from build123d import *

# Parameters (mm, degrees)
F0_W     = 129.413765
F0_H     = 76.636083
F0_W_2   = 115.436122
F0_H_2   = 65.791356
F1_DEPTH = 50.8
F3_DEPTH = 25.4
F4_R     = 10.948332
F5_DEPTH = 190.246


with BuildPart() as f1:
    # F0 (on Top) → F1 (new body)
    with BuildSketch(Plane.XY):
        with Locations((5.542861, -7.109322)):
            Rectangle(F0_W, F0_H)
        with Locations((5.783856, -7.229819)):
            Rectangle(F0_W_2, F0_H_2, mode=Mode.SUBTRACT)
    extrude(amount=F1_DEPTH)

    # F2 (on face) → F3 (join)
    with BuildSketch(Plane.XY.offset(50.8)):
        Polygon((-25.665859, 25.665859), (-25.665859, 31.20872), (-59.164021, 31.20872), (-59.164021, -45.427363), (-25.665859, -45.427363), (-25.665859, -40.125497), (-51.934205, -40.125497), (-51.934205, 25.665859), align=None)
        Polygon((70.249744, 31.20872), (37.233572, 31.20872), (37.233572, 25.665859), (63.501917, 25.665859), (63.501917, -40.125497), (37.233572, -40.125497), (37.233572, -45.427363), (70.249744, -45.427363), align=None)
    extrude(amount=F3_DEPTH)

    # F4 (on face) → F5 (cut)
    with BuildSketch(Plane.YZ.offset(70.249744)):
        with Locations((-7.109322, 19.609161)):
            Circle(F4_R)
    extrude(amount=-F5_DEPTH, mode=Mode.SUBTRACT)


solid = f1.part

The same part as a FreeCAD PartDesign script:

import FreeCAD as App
import Part
import Sketcher
Q = App.Units.Quantity


def add_polygon(sketch, points):
    """Adds a closed chain of lines whose ends are joined by coincident constraints."""
    first, n = sketch.GeometryCount, len(points)
    for a, b in zip(points, points[1:] + points[:1]):
        sketch.addGeometry(Part.LineSegment(App.Vector(*a, 0), App.Vector(*b, 0)), False)
    for i in range(n):
        sketch.addConstraint(Sketcher.Constraint("Coincident", first + i, 2, first + (i + 1) % n, 1))

doc = App.newDocument("Part")
body = doc.addObject("PartDesign::Body", "Body")

sketch1 = body.newObject("Sketcher::SketchObject", "Sketch")
sketch1.AttachmentSupport = (doc.getObject("XY_Plane"), [""])
sketch1.MapMode = "FlatFace"
add_polygon(sketch1, [(-59, 31), (-59, -45), (70, -45), (70, 31)])
add_polygon(sketch1, [(64, -40), (-52, -40), (-52, 26), (64, 26)])
sketch1.addConstraint([
    Sketcher.Constraint("Vertical", 0),
    Sketcher.Constraint("Horizontal", 1),
    Sketcher.Constraint("Vertical", 2),
    Sketcher.Constraint("Horizontal", 3),
    Sketcher.Constraint("Horizontal", 4),
    Sketcher.Constraint("Vertical", 5),
    Sketcher.Constraint("Horizontal", 6),
    Sketcher.Constraint("Vertical", 7),
    Sketcher.Constraint("DistanceX", 4, 2, 4, 1, 115.436122),
    Sketcher.Constraint("DistanceX", 1, 1, 1, 2, 129.413765),
    Sketcher.Constraint("DistanceY", 0, 2, 0, 1, 76.636083),
    Sketcher.Constraint("DistanceY", 5, 1, 5, 2, 65.791356),
    Sketcher.Constraint("DistanceX", 0, 2, -1, 1, 59.164021),
    Sketcher.Constraint("DistanceY", -1, 1, 2, 2, 31.20872),
    Sketcher.Constraint("DistanceY", -1, 1, 5, 2, 25.665859),
    Sketcher.Constraint("DistanceX", 4, 2, 1, 2, 122.183948),
])
pad1 = body.newObject("PartDesign::Pad", "Pad")
pad1.Profile = sketch1
pad1.Length = Q("2 in")

sketch2 = body.newObject("Sketcher::SketchObject", "Sketch001")
sketch2.AttachmentSupport = (doc.getObject("XY_Plane"), [""])
sketch2.MapMode = "FlatFace"
sketch2.AttachmentOffset = App.Placement(App.Vector(0, 0, 2 * 25.4), App.Rotation())
add_polygon(sketch2, [(-26, 26), (-26, 31), (-59, 31), (-59, -45), (-26, -45), (-26, -40), (-52, -40), (-52, 26)])
add_polygon(sketch2, [(70, 31), (37, 31), (37, 26), (64, 26), (64, -40), (37, -40), (37, -45), (70, -45)])
sketch2.addConstraint([
    Sketcher.Constraint("Vertical", 0),
    Sketcher.Constraint("Horizontal", 1),
    Sketcher.Constraint("Vertical", 2),
    Sketcher.Constraint("Horizontal", 3),
    Sketcher.Constraint("Vertical", 4),
    Sketcher.Constraint("Horizontal", 5),
    Sketcher.Constraint("Vertical", 6),
    Sketcher.Constraint("Horizontal", 7),
    Sketcher.Constraint("Horizontal", 8),
    Sketcher.Constraint("Vertical", 9),
    Sketcher.Constraint("Horizontal", 10),
    Sketcher.Constraint("Vertical", 11),
    Sketcher.Constraint("Horizontal", 12),
    Sketcher.Constraint("Vertical", 13),
    Sketcher.Constraint("Horizontal", 14),
    Sketcher.Constraint("Vertical", 15),
    Sketcher.Constraint("Horizontal", 1, 2, 8, 2),
    Sketcher.Constraint("Horizontal", 7, 2, 9, 2),
    Sketcher.Constraint("Horizontal", 5, 2, 11, 2),
    Sketcher.Constraint("Horizontal", 3, 2, 13, 2),
    Sketcher.Constraint("Vertical", 0, 2, 3, 2),
    Sketcher.Constraint("Vertical", 9, 2, 12, 2),
    Sketcher.Constraint("Equal", 7, 10),
    Sketcher.Constraint("DistanceX", 1, 2, 1, 1, 33.498162),
    Sketcher.Constraint("DistanceY", 0, 1, 0, 2, 5.542861),
    Sketcher.Constraint("DistanceX", 5, 2, 5, 1, 26.268346),
    Sketcher.Constraint("DistanceX", 8, 2, 8, 1, 33.016172),
    Sketcher.Constraint("DistanceY", 2, 2, 2, 1, 76.636083),
    Sketcher.Constraint("DistanceY", 4, 1, 4, 2, 5.301866),
    Sketcher.Constraint("DistanceX", 0, 2, -1, 1, 25.665859),
    Sketcher.Constraint("DistanceY", -1, 1, 0, 2, 31.20872),
    Sketcher.Constraint("DistanceX", 0, 2, 8, 2, 62.899431),
])
pad2 = body.newObject("PartDesign::Pad", "Pad001")
pad2.Profile = sketch2
pad2.Length = Q("1 in")

sketch3 = body.newObject("Sketcher::SketchObject", "Sketch002")
sketch3.AttachmentSupport = (doc.getObject("YZ_Plane"), [""])
sketch3.MapMode = "FlatFace"
sketch3.AttachmentOffset = App.Placement(App.Vector(0, 0, 70.249744), App.Rotation())
sketch3.addGeometry(Part.Circle(App.Vector(-7, 20, 0), App.Vector(0, 0, 1), 11), False)
sketch3.addConstraint([
    Sketcher.Constraint("Diameter", 0, 21.896664),
    Sketcher.Constraint("DistanceX", 0, 3, -1, 1, 7.109322),
    Sketcher.Constraint("DistanceY", -1, 1, 0, 3, 19.609161),
])
pocket1 = body.newObject("PartDesign::Pocket", "Pocket")
pocket1.Profile = sketch3
pocket1.Length = Q("7.49 in")

doc.recompute()
